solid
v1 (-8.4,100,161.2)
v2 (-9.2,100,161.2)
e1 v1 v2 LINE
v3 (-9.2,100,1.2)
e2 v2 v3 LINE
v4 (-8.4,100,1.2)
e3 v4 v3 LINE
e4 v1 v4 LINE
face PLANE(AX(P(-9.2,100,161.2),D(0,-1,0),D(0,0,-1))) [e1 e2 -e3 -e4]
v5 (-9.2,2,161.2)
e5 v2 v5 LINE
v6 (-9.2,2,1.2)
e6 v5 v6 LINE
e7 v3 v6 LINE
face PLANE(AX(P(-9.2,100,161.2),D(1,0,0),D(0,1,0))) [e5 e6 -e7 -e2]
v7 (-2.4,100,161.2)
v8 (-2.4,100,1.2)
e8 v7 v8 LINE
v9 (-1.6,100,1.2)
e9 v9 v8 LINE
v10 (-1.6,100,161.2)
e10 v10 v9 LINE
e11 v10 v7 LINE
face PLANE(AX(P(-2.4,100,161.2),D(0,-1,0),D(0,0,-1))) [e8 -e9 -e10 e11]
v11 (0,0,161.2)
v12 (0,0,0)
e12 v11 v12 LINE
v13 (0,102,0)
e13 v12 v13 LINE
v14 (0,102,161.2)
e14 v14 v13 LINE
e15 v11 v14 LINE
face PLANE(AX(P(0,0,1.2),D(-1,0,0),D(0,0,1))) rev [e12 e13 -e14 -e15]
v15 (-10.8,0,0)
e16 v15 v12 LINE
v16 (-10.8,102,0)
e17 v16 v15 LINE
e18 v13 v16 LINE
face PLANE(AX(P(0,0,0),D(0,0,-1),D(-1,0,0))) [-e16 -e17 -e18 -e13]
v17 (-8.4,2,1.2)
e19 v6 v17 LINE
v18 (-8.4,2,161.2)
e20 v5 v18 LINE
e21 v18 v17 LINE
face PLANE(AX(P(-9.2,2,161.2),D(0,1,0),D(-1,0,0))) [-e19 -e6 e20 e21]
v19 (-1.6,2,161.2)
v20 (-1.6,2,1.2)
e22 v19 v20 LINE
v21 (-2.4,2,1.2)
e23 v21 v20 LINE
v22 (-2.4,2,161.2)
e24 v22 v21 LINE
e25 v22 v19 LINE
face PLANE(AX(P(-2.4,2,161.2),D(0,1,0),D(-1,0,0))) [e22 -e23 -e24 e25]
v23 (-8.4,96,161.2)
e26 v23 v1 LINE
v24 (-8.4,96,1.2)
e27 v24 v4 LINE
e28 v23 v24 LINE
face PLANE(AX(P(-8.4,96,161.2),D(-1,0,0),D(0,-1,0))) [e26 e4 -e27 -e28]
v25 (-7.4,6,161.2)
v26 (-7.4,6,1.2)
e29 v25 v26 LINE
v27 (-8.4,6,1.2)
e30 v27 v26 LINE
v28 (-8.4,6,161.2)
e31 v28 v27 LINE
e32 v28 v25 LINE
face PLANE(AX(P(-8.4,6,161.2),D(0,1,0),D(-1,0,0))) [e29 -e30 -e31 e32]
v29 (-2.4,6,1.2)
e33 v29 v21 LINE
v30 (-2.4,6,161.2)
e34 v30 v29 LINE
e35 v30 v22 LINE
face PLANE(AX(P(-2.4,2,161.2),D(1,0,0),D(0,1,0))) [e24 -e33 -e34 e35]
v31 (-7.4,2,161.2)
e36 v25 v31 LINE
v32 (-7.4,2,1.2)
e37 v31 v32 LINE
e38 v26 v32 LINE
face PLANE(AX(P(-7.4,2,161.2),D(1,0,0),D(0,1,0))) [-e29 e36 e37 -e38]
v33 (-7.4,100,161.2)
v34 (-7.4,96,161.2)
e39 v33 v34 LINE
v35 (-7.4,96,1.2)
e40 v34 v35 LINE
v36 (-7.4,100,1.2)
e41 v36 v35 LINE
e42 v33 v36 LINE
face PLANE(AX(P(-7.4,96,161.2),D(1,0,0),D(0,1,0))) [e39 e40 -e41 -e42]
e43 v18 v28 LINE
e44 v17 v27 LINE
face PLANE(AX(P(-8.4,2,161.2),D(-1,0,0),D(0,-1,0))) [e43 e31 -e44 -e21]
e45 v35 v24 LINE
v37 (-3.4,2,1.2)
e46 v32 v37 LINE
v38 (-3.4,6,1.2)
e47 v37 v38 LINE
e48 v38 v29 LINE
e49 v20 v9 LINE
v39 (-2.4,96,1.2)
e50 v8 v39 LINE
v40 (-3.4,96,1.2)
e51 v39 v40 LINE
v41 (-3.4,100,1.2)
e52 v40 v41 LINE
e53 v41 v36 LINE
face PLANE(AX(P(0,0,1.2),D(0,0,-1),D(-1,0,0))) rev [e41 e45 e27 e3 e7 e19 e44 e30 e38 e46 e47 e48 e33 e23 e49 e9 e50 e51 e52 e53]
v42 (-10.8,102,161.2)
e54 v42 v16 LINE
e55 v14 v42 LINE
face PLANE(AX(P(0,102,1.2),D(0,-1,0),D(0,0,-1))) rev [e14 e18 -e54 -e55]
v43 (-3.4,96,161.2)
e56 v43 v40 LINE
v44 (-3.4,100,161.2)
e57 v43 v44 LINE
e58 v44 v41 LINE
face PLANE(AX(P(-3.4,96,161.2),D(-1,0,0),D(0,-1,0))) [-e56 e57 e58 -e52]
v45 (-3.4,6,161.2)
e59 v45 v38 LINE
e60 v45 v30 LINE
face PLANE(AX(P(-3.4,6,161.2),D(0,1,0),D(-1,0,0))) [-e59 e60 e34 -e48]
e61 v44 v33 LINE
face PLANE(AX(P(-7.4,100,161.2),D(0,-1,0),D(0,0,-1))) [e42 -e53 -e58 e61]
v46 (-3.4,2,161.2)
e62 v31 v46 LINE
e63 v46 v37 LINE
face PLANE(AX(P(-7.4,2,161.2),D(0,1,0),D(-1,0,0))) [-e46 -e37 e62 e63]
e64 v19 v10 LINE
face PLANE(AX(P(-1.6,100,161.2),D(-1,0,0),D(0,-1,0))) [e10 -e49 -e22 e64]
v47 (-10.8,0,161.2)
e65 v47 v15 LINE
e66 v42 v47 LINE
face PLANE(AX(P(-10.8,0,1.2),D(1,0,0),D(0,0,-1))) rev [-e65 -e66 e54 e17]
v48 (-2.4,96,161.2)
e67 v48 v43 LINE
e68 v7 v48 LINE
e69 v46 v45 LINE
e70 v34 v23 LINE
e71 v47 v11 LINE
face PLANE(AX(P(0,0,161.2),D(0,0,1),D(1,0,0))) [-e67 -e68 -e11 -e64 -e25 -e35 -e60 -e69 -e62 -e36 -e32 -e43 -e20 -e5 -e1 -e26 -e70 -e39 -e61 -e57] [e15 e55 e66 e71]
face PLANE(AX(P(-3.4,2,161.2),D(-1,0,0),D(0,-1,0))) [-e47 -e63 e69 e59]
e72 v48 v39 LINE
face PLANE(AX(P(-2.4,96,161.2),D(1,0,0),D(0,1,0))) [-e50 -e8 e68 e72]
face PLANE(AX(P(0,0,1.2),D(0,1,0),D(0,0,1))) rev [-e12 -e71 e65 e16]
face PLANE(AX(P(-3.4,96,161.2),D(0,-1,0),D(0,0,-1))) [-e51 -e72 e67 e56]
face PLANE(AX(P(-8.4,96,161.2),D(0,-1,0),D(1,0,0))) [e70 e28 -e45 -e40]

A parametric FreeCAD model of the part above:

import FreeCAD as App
import Part
import Sketcher

doc = App.newDocument("Part")
params = doc.addObject("Spreadsheet::Sheet", "Params")
for row, (alias, value) in enumerate([
    ("sketch1_height", "102 mm"),
    ("sketch1_width", "10.8 mm"),
    ("pad1_length", "1.2 mm"),
    ("sketch2_width", "1 mm"),
    ("sketch2_width2", "4 mm"),
    ("sketch2_height", "102 mm"),
    ("sketch2_height2", "98 mm"),
    ("sketch2_width3", "10.8 mm"),
    ("pad2_length", "160 mm"),
], start=1):
    params.set(f"A{row}", alias)
    params.set(f"B{row}", "=" + value)
    params.setAlias(f"B{row}", alias)

body = doc.addObject("PartDesign::Body", "Body")

# Sketch on XY plane
sketch1 = body.newObject("Sketcher::SketchObject", "Sketch")
sketch1.AttachmentSupport = (doc.getObject("XY_Plane"), [""])
sketch1.MapMode = "FlatFace"
sketch1.addGeometry(Part.LineSegment(App.Vector(-11, 0, 0), App.Vector(0, 0, 0)), False)
sketch1.addGeometry(Part.LineSegment(App.Vector(0, 0, 0), App.Vector(0, 102, 0)), False)
sketch1.addGeometry(Part.LineSegment(App.Vector(0, 102, 0), App.Vector(-11, 102, 0)), False)
sketch1.addGeometry(Part.LineSegment(App.Vector(-11, 102, 0), App.Vector(-11, 0, 0)), False)
sketch1.addConstraint(Sketcher.Constraint("Coincident", 0, 2, 1, 1))
sketch1.addConstraint(Sketcher.Constraint("Coincident", 1, 2, 2, 1))
sketch1.addConstraint(Sketcher.Constraint("Coincident", 2, 2, 3, 1))
sketch1.addConstraint(Sketcher.Constraint("Coincident", 3, 2, 0, 1))
sketch1.addConstraint(Sketcher.Constraint("Horizontal", 0))
sketch1.addConstraint(Sketcher.Constraint("Vertical", 1))
sketch1.addConstraint(Sketcher.Constraint("Horizontal", 2))
sketch1.addConstraint(Sketcher.Constraint("Vertical", 3))
sketch1.addConstraint(Sketcher.Constraint("Coincident", 0, 2, -1, 1))
sketch1.addConstraint(Sketcher.Constraint("DistanceY", 1, 1, 1, 2, 102.0))
sketch1.addConstraint(Sketcher.Constraint("DistanceX", 0, 1, 0, 2, 10.8))
sketch1.setExpression("Constraints[9]", "Params.sketch1_height")
sketch1.setExpression("Constraints[10]", "Params.sketch1_width")
pad1 = body.newObject("PartDesign::Pad", "Pad")
pad1.Profile = sketch1
pad1.setExpression("Length", "Params.pad1_length")

# Sketch on XY plane
sketch2 = body.newObject("Sketcher::SketchObject", "Sketch001")
sketch2.AttachmentSupport = (doc.getObject("XY_Plane"), [""])
sketch2.MapMode = "FlatFace"
sketch2.AttachmentOffset = App.Placement(App.Vector(0, 0, 1.2), App.Rotation())
sketch2.addGeometry(Part.LineSegment(App.Vector(-10.8, 102, 0), App.Vector(-10.8, 0, 0)), False)
sketch2.addGeometry(Part.LineSegment(App.Vector(-10.8, 0, 0), App.Vector(0, 0, 0)), False)
sketch2.addGeometry(Part.LineSegment(App.Vector(0, 0, 0), App.Vector(0, 102, 0)), False)
sketch2.addGeometry(Part.LineSegment(App.Vector(0, 102, 0), App.Vector(-10.8, 102, 0)), False)
sketch2.addGeometry(Part.LineSegment(App.Vector(-9.2, 2, 0), App.Vector(-9.2, 100, 0)), False)
sketch2.addGeometry(Part.LineSegment(App.Vector(-9.2, 100, 0), App.Vector(-8.4, 100, 0)), False)
sketch2.addGeometry(Part.LineSegment(App.Vector(-8.4, 100, 0), App.Vector(-8.4, 96, 0)), False)
sketch2.addGeometry(Part.LineSegment(App.Vector(-8.4, 96, 0), App.Vector(-7.4, 96, 0)), False)
sketch2.addGeometry(Part.LineSegment(App.Vector(-7.4, 96, 0), App.Vector(-7.4, 100, 0)), False)
sketch2.addGeometry(Part.LineSegment(App.Vector(-7.4, 100, 0), App.Vector(-3.4, 100, 0)), False)
sketch2.addGeometry(Part.LineSegment(App.Vector(-3.4, 100, 0), App.Vector(-3.4, 96, 0)), False)
sketch2.addGeometry(Part.LineSegment(App.Vector(-3.4, 96, 0), App.Vector(-2.4, 96, 0)), False)
sketch2.addGeometry(Part.LineSegment(App.Vector(-2.4, 96, 0), App.Vector(-2.4, 100, 0)), False)
sketch2.addGeometry(Part.LineSegment(App.Vector(-2.4, 100, 0), App.Vector(-1.6, 100, 0)), False)
sketch2.addGeometry(Part.LineSegment(App.Vector(-1.6, 100, 0), App.Vector(-1.6, 2, 0)), False)
sketch2.addGeometry(Part.LineSegment(App.Vector(-1.6, 2, 0), App.Vector(-2.4, 2, 0)), False)
sketch2.addGeometry(Part.LineSegment(App.Vector(-2.4, 2, 0), App.Vector(-2.4, 6, 0)), False)
sketch2.addGeometry(Part.LineSegment(App.Vector(-2.4, 6, 0), App.Vector(-3.4, 6, 0)), False)
sketch2.addGeometry(Part.LineSegment(App.Vector(-3.4, 6, 0), App.Vector(-3.4, 2, 0)), False)
sketch2.addGeometry(Part.LineSegment(App.Vector(-3.4, 2, 0), App.Vector(-7.4, 2, 0)), False)
sketch2.addGeometry(Part.LineSegment(App.Vector(-7.4, 2, 0), App.Vector(-7.4, 6, 0)), False)
sketch2.addGeometry(Part.LineSegment(App.Vector(-7.4, 6, 0), App.Vector(-8.4, 6, 0)), False)
sketch2.addGeometry(Part.LineSegment(App.Vector(-8.4, 6, 0), App.Vector(-8.4, 2, 0)), False)
sketch2.addGeometry(Part.LineSegment(App.Vector(-8.4, 2, 0), App.Vector(-9.2, 2, 0)), False)
sketch2.addConstraint(Sketcher.Constraint("Coincident", 0, 2, 1, 1))
sketch2.addConstraint(Sketcher.Constraint("Coincident", 1, 2, 2, 1))
sketch2.addConstraint(Sketcher.Constraint("Coincident", 2, 2, 3, 1))
sketch2.addConstraint(Sketcher.Constraint("Coincident", 3, 2, 0, 1))
sketch2.addConstraint(Sketcher.Constraint("Coincident", 4, 2, 5, 1))
sketch2.addConstraint(Sketcher.Constraint("Coincident", 5, 2, 6, 1))
sketch2.addConstraint(Sketcher.Constraint("Coincident", 6, 2, 7, 1))
sketch2.addConstraint(Sketcher.Constraint("Coincident", 7, 2, 8, 1))
sketch2.addConstraint(Sketcher.Constraint("Coincident", 8, 2, 9, 1))
sketch2.addConstraint(Sketcher.Constraint("Coincident", 9, 2, 10, 1))
sketch2.addConstraint(Sketcher.Constraint("Coincident", 10, 2, 11, 1))
sketch2.addConstraint(Sketcher.Constraint("Coincident", 11, 2, 12, 1))
sketch2.addConstraint(Sketcher.Constraint("Coincident", 12, 2, 13, 1))
sketch2.addConstraint(Sketcher.Constraint("Coincident", 13, 2, 14, 1))
sketch2.addConstraint(Sketcher.Constraint("Coincident", 14, 2, 15, 1))
sketch2.addConstraint(Sketcher.Constraint("Coincident", 15, 2, 16, 1))
sketch2.addConstraint(Sketcher.Constraint("Coincident", 16, 2, 17, 1))
sketch2.addConstraint(Sketcher.Constraint("Coincident", 17, 2, 18, 1))
sketch2.addConstraint(Sketcher.Constraint("Coincident", 18, 2, 19, 1))
sketch2.addConstraint(Sketcher.Constraint("Coincident", 19, 2, 20, 1))
sketch2.addConstraint(Sketcher.Constraint("Coincident", 20, 2, 21, 1))
sketch2.addConstraint(Sketcher.Constraint("Coincident", 21, 2, 22, 1))
sketch2.addConstraint(Sketcher.Constraint("Coincident", 22, 2, 23, 1))
sketch2.addConstraint(Sketcher.Constraint("Coincident", 23, 2, 4, 1))
sketch2.addConstraint(Sketcher.Constraint("Vertical", 0))
sketch2.addConstraint(Sketcher.Constraint("Horizontal", 1))
sketch2.addConstraint(Sketcher.Constraint("Vertical", 2))
sketch2.addConstraint(Sketcher.Constraint("Horizontal", 3))
sketch2.addConstraint(Sketcher.Constraint("Vertical", 4))
sketch2.addConstraint(Sketcher.Constraint("Horizontal", 5))
sketch2.addConstraint(Sketcher.Constraint("Vertical", 6))
sketch2.addConstraint(Sketcher.Constraint("Horizontal", 7))
sketch2.addConstraint(Sketcher.Constraint("Vertical", 8))
sketch2.addConstraint(Sketcher.Constraint("Horizontal", 9))
sketch2.addConstraint(Sketcher.Constraint("Vertical", 10))
sketch2.addConstraint(Sketcher.Constraint("Horizontal", 11))
sketch2.addConstraint(Sketcher.Constraint("Vertical", 12))
sketch2.addConstraint(Sketcher.Constraint("Horizontal", 13))
sketch2.addConstraint(Sketcher.Constraint("Vertical", 14))
sketch2.addConstraint(Sketcher.Constraint("Horizontal", 15))
sketch2.addConstraint(Sketcher.Constraint("Vertical", 16))
sketch2.addConstraint(Sketcher.Constraint("Horizontal", 17))
sketch2.addConstraint(Sketcher.Constraint("Vertical", 18))
sketch2.addConstraint(Sketcher.Constraint("Horizontal", 19))
sketch2.addConstraint(Sketcher.Constraint("Vertical", 20))
sketch2.addConstraint(Sketcher.Constraint("Horizontal", 21))
sketch2.addConstraint(Sketcher.Constraint("Vertical", 22))
sketch2.addConstraint(Sketcher.Constraint("Horizontal", 23))
sketch2.addConstraint(Sketcher.Constraint("Coincident", 1, 2, -1, 1))
sketch2.addConstraint(Sketcher.Constraint("Horizontal", 5, 2, 8, 2))
sketch2.addConstraint(Sketcher.Constraint("Horizontal", 7, 2, 10, 2))
sketch2.addConstraint(Sketcher.Constraint("Horizontal", 9, 2, 12, 2))
sketch2.addConstraint(Sketcher.Constraint("Horizontal", 15, 2, 18, 2))
sketch2.addConstraint(Sketcher.Constraint("Horizontal", 17, 2, 20, 2))
sketch2.addConstraint(Sketcher.Constraint("Horizontal", 19, 2, 22, 2))
sketch2.addConstraint(Sketcher.Constraint("Vertical", 12, 2, 15, 2))
sketch2.addConstraint(Sketcher.Constraint("Vertical", 10, 2, 17, 2))
sketch2.addConstraint(Sketcher.Constraint("Vertical", 8, 2, 19, 2))
sketch2.addConstraint(Sketcher.Constraint("Vertical", 6, 2, 21, 2))
sketch2.addConstraint(Sketcher.Constraint("Equal", 7, 11))
sketch2.addConstraint(Sketcher.Constraint("Equal", 5, 13))
sketch2.addConstraint(Sketcher.Constraint("Equal", 19, 6))
sketch2.addConstraint(Sketcher.Constraint("Equal", 12, 16))
sketch2.addConstraint(Sketcher.Constraint("DistanceX", 7, 1, 7, 2, 1.0))
sketch2.addConstraint(Sketcher.Constraint("DistanceX", 9, 1, 9, 2, 4.0))
sketch2.addConstraint(Sketcher.Constraint("DistanceY", 0, 2, 0, 1, 102.0))
sketch2.addConstraint(Sketcher.Constraint("DistanceY", 4, 1, 4, 2, 98.0))
sketch2.addConstraint(Sketcher.Constraint("DistanceX", 1, 1, 1, 2, 10.8))
sketch2.addConstraint(Sketcher.Constraint("DistanceX", 5, 1, 5, 2, 0.8))
sketch2.addConstraint(Sketcher.Constraint("DistanceY", -1, 1, 4, 2, 100.0))
sketch2.addConstraint(Sketcher.Constraint("DistanceX", 4, 2, -1, 1, 9.2))
sketch2.setExpression("Constraints[63]", "Params.sketch2_width")
sketch2.setExpression("Constraints[64]", "Params.sketch2_width2")
sketch2.setExpression("Constraints[65]", "Params.sketch2_height")
sketch2.setExpression("Constraints[66]", "Params.sketch2_height2")
sketch2.setExpression("Constraints[67]", "Params.sketch2_width3")
pad2 = body.newObject("PartDesign::Pad", "Pad001")
pad2.Profile = sketch2
pad2.setExpression("Length", "Params.pad2_length")

doc.recompute()
